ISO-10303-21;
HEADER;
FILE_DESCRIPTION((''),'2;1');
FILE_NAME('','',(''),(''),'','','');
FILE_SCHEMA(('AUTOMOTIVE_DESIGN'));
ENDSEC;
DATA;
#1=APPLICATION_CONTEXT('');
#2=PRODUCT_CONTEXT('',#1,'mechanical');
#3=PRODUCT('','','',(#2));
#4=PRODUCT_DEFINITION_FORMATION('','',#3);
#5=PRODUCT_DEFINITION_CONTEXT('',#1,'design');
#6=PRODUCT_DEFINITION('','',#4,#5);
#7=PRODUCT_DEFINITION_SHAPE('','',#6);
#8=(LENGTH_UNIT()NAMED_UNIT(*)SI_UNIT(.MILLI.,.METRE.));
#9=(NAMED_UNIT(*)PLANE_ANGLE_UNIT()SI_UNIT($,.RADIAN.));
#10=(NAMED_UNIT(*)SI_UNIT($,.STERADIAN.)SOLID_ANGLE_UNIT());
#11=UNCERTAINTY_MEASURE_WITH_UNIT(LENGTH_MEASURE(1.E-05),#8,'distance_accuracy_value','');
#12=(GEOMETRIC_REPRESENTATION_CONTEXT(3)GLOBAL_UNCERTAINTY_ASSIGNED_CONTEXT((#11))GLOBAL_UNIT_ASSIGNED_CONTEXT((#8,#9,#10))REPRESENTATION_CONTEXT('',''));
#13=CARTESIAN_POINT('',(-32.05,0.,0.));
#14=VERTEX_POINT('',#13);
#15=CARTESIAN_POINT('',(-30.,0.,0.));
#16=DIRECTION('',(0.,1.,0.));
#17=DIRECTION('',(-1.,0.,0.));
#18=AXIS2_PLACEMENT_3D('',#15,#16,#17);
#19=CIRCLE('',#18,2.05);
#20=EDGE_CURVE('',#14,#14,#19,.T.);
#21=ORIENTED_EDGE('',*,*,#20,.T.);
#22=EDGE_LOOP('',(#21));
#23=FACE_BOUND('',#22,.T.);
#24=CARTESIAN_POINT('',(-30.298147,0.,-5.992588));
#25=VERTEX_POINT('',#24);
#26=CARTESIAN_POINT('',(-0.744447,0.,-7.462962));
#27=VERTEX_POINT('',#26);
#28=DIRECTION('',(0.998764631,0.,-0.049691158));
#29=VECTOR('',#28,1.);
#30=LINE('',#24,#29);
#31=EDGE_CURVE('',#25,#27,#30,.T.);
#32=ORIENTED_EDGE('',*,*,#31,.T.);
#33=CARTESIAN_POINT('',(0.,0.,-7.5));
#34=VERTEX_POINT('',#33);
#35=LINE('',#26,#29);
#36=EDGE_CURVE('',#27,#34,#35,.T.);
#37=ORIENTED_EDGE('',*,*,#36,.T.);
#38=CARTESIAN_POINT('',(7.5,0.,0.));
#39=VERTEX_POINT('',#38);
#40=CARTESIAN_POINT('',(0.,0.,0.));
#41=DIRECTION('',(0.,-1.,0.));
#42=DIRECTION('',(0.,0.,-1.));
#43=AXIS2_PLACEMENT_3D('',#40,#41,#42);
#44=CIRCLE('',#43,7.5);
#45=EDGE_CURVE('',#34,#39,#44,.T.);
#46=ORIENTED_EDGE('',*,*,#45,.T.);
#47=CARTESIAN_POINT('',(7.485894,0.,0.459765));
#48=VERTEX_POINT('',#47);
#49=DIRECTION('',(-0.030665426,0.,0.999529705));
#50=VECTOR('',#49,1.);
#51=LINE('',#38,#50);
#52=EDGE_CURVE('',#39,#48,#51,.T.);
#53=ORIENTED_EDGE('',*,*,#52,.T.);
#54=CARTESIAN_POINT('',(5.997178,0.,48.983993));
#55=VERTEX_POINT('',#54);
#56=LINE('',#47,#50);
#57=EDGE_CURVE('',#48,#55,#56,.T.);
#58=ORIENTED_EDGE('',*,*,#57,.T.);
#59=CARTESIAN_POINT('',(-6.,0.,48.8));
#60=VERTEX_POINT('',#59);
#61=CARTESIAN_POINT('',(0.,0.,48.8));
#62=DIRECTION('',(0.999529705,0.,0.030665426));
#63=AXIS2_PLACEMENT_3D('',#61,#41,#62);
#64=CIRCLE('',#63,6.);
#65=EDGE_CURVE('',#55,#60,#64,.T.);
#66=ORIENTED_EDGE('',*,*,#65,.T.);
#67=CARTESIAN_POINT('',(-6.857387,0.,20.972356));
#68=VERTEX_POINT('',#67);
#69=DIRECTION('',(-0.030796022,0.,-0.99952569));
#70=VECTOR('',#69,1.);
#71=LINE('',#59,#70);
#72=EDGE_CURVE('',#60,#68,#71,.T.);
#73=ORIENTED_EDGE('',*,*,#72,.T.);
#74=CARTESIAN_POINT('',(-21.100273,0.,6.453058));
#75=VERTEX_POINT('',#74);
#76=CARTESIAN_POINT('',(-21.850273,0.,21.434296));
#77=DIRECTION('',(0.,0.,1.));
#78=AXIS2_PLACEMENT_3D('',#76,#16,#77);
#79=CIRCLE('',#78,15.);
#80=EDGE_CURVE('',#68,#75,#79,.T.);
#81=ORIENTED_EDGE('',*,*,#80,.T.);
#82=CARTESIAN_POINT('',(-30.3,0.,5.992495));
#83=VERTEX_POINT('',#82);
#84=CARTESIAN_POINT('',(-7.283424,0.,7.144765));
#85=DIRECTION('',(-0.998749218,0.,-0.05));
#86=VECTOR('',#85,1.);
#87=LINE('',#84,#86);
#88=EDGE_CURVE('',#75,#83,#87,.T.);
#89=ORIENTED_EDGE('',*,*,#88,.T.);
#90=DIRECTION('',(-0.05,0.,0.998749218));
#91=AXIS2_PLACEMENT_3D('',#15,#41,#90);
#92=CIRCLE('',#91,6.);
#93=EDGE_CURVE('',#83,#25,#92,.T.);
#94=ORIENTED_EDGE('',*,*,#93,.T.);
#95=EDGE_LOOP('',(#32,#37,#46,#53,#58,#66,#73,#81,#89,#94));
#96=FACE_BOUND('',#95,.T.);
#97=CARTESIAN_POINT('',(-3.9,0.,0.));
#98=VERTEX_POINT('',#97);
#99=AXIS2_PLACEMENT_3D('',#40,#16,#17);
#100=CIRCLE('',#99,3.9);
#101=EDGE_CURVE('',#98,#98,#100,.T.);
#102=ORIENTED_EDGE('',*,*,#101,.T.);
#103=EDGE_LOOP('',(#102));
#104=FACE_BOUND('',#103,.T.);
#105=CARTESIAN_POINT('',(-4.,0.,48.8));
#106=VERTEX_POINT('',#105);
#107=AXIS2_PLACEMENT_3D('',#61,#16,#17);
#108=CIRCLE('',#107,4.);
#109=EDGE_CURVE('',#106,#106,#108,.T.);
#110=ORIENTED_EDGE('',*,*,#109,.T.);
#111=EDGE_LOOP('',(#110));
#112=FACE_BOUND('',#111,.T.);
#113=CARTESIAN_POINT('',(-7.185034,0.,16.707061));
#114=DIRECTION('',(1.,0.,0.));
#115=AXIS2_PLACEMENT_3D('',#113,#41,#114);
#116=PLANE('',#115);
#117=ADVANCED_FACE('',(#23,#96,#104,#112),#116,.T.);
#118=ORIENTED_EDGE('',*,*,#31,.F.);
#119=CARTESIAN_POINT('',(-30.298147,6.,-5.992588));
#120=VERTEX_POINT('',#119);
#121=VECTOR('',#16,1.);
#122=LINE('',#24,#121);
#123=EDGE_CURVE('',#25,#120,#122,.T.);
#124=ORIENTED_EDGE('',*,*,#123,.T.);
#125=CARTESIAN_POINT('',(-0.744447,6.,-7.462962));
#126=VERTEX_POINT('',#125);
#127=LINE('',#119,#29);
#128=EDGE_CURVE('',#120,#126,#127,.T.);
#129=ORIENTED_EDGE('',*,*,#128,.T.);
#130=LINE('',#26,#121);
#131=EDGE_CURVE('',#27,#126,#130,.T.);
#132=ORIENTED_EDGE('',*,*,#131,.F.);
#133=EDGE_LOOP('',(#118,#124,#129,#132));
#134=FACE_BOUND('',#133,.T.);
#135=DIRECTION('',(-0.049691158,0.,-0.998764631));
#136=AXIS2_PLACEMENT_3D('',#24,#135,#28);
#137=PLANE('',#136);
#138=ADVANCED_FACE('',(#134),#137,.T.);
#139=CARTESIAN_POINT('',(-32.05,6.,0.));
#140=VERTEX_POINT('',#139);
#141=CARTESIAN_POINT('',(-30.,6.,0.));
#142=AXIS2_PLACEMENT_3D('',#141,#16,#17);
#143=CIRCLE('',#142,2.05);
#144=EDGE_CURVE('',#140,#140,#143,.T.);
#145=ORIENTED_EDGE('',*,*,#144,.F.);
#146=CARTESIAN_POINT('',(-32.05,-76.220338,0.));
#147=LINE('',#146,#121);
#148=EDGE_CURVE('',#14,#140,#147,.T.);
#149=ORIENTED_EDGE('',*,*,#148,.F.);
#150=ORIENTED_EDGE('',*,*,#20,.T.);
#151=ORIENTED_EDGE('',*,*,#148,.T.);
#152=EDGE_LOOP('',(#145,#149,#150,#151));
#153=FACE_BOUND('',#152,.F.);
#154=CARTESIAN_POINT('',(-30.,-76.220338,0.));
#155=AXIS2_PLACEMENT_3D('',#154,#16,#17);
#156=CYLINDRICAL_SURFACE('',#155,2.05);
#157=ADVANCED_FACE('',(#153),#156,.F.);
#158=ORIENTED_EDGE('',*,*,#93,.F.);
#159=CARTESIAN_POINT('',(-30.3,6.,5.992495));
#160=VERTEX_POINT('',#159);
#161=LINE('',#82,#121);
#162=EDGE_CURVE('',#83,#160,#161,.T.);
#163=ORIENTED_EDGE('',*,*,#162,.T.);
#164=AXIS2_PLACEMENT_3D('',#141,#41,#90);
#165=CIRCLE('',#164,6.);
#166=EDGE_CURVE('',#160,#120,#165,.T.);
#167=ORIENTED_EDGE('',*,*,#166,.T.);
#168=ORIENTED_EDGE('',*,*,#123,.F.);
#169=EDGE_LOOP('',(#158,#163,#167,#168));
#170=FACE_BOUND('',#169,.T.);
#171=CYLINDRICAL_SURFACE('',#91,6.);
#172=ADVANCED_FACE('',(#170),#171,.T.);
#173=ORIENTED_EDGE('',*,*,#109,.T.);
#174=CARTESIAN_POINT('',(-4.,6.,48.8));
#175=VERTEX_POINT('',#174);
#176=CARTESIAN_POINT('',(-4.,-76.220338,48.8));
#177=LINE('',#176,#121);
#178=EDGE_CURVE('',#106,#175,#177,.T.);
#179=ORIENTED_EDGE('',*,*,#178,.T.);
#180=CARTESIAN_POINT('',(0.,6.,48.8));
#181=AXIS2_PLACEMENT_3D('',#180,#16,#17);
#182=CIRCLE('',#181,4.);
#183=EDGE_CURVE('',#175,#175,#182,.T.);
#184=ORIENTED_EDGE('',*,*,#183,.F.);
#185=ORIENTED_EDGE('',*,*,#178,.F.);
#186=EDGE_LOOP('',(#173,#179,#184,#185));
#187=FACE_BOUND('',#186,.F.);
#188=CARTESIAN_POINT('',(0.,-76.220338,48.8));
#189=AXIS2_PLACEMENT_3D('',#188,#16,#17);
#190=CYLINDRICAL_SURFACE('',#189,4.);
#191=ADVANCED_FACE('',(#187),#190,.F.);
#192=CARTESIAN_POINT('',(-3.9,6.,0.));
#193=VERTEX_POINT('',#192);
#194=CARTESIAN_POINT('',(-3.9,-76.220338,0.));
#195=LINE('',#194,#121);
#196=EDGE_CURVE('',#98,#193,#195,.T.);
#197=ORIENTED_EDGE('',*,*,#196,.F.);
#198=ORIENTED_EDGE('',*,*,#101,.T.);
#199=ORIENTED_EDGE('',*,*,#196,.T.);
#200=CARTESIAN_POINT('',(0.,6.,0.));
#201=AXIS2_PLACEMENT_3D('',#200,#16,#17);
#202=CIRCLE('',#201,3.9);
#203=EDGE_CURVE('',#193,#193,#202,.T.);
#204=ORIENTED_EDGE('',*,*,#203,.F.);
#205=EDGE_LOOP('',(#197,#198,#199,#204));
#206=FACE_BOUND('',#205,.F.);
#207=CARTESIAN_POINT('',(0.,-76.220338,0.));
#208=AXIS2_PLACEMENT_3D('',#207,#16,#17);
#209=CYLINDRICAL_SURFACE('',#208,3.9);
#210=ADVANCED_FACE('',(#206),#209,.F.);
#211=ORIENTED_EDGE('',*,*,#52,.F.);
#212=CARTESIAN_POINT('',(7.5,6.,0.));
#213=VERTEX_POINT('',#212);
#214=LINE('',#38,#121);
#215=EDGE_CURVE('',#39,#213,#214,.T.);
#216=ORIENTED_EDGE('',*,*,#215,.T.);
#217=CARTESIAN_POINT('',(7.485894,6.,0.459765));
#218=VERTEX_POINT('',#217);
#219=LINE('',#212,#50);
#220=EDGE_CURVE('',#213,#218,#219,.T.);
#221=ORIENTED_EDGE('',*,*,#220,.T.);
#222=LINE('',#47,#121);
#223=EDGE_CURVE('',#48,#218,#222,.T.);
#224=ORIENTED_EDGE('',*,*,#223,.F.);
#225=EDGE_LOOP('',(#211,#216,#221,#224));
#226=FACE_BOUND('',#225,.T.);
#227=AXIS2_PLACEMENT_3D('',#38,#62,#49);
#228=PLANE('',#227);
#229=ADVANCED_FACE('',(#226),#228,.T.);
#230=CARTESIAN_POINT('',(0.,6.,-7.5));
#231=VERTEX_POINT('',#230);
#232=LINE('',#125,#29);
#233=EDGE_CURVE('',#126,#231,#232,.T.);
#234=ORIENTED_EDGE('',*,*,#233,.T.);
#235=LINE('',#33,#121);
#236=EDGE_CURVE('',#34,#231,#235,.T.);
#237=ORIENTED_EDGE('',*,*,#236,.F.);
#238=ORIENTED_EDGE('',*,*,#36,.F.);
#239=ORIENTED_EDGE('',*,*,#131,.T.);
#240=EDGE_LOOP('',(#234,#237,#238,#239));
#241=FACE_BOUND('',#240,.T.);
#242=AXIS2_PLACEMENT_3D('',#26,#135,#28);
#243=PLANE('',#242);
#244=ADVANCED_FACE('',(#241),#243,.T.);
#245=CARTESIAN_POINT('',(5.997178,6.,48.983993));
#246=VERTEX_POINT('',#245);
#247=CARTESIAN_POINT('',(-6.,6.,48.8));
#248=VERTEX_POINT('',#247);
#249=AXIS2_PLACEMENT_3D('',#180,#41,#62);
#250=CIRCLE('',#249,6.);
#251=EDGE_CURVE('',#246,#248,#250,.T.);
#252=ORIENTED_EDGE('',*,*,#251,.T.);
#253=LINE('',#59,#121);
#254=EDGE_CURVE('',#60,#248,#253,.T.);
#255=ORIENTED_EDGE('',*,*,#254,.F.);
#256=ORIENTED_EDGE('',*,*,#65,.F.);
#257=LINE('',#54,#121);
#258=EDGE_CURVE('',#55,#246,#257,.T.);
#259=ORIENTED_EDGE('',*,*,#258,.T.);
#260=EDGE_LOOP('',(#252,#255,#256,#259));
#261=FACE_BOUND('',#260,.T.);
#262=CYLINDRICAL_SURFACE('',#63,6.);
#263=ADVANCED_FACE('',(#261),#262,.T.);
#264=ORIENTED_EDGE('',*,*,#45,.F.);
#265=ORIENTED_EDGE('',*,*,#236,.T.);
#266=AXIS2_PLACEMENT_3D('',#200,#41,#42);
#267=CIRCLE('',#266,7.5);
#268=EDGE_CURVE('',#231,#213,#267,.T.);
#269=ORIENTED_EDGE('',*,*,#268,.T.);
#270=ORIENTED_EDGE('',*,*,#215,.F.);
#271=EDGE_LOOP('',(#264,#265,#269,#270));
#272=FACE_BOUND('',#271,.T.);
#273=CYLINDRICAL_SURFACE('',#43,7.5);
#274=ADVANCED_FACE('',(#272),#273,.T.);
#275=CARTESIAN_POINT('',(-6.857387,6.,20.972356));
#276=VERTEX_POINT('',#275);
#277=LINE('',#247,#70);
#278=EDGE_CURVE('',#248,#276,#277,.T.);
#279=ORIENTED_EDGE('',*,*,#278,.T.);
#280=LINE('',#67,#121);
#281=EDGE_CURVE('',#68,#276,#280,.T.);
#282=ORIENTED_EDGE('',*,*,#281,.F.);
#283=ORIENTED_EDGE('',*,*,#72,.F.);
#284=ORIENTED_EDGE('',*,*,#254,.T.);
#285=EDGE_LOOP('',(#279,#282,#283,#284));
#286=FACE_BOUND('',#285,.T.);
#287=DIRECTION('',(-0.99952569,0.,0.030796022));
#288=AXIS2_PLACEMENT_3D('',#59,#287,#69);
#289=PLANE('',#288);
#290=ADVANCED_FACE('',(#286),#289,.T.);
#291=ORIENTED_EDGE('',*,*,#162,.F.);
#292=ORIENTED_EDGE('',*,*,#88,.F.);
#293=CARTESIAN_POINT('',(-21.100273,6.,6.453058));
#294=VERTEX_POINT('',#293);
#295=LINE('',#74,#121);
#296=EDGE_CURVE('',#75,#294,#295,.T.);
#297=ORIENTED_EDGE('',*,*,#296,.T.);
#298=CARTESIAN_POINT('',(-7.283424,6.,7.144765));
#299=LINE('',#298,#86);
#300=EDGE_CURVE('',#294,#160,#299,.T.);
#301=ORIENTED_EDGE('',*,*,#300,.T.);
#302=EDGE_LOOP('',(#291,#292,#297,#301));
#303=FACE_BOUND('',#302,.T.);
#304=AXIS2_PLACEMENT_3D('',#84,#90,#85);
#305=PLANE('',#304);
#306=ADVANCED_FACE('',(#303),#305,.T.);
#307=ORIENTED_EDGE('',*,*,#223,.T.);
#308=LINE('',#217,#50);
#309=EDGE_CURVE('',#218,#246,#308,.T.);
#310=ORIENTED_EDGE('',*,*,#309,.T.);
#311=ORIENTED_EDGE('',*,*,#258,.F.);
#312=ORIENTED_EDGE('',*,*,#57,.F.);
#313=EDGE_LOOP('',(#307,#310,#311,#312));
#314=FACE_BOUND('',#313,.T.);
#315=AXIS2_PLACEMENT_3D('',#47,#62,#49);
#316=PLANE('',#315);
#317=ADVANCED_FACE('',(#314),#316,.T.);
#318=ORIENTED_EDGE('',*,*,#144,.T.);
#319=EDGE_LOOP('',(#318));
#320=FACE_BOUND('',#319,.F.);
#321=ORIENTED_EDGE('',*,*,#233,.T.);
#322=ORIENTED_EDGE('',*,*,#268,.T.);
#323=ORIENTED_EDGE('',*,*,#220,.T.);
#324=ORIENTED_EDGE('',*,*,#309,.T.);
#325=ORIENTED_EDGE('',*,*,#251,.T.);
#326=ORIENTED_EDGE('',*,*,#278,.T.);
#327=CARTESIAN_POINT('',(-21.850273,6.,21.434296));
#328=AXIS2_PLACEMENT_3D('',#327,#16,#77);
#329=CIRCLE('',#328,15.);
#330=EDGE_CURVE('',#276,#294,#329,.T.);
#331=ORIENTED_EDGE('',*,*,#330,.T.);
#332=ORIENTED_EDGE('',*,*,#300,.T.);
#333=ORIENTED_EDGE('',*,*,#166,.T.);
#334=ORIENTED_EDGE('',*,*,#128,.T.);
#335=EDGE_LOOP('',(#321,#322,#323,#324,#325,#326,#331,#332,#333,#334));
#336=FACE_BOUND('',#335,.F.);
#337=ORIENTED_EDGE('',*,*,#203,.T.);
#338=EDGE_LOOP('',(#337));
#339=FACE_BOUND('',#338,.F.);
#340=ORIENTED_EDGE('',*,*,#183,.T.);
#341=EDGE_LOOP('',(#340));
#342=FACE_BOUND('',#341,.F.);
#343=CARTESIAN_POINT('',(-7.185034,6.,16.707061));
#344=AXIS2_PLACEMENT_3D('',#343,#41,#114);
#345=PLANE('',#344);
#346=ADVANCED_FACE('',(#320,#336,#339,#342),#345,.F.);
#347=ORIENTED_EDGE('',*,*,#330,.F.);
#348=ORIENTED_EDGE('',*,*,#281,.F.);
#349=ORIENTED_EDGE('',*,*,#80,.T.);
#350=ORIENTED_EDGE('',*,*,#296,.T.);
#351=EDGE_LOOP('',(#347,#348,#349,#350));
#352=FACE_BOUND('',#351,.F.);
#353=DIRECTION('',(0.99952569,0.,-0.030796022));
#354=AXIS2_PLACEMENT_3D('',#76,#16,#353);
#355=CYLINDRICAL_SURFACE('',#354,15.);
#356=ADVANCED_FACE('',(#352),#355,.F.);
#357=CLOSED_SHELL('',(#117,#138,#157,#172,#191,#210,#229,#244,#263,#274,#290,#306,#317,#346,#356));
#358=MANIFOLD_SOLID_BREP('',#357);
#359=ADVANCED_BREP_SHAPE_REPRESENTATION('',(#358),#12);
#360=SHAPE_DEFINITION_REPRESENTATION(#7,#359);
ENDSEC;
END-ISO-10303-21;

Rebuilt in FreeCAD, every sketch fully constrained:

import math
import FreeCAD as App
import Part
import Sketcher
Q = App.Units.Quantity


def edges_at(feature, points):
    """Names of the edges that pass closest to the given points."""
    edges = feature.Shape.Edges
    near = lambda p: min(range(len(edges)), key=lambda i: edges[i].distToShape(Part.Vertex(*p))[0])
    return sorted({f"Edge{near(p) + 1}" for p in points})

doc = App.newDocument("Part")
body = doc.addObject("PartDesign::Body", "Body")

sketch1 = body.newObject("Sketcher::SketchObject", "Sketch")
sketch1.AttachmentSupport = (doc.getObject("XZ_Plane"), [""])
sketch1.MapMode = "FlatFace"
sketch1.addGeometry([
    Part.LineSegment(App.Vector(7.49, 0.46, 0), App.Vector(6, 48.98, 0)),
    Part.ArcOfCircle(Part.Circle(App.Vector(0, 48.8, 0), App.Vector(0, 0, 1), 6), math.radians(2), math.radians(180)),
    Part.LineSegment(App.Vector(-6, 48.8, 0), App.Vector(-7.28, 7.14, 0)),
    Part.LineSegment(App.Vector(-7.28, 7.14, 0), App.Vector(-30.3, 5.99, 0)),
    Part.ArcOfCircle(Part.Circle(App.Vector(-30, 0, 0), App.Vector(0, 0, 1), 6), math.radians(93), math.radians(267)),
    Part.LineSegment(App.Vector(-30.3, -5.99, 0), App.Vector(-0.74, -7.46, 0)),
    Part.LineSegment(App.Vector(-0.74, -7.46, 0), App.Vector(0, -7.5, 0)),
    Part.ArcOfCircle(Part.Circle(App.Vector(0, 0, 0), App.Vector(0, 0, 1), 7.5), math.radians(-90), math.radians(0)),
    Part.LineSegment(App.Vector(7.5, 0, 0), App.Vector(7.49, 0.46, 0)),
], False)
sketch1.addConstraint([
    Sketcher.Constraint("Tangent", 0, 2, 1, 1),
    Sketcher.Constraint("Coincident", 1, 2, 2, 1),
    Sketcher.Constraint("Coincident", 2, 2, 3, 1),
    Sketcher.Constraint("Tangent", 3, 2, 4, 1),
    Sketcher.Constraint("Tangent", 4, 2, 5, 1),
    Sketcher.Constraint("Coincident", 5, 2, 6, 1),
    Sketcher.Constraint("Coincident", 6, 2, 7, 1),
    Sketcher.Constraint("Coincident", 7, 2, 8, 1),
    Sketcher.Constraint("Coincident", 8, 2, 0, 1),
    Sketcher.Constraint("Coincident", 7, 3, -1, 1),
    Sketcher.Constraint("Equal", 1, 4),
    Sketcher.Constraint("PointOnObject", 1, 3, -2),
    Sketcher.Constraint("PointOnObject", 4, 3, -1),
    Sketcher.Constraint("PointOnObject", 6, 2, -2),
    Sketcher.Constraint("PointOnObject", 7, 2, -1),
    Sketcher.Constraint("Parallel", 5, 6),
    Sketcher.Constraint("Parallel", 0, 8),
    Sketcher.Constraint("Radius", 1, Q("6 mm")),
    Sketcher.Constraint("Radius", 7, Q("7.5 mm")),
    Sketcher.Constraint("DistanceX", 4, 3, -1, 1, Q("30 mm")),
    Sketcher.Constraint("DistanceY", -1, 1, 1, 3, Q("48.8 mm")),
    Sketcher.Constraint("DistanceY", -1, 1, 1, 2, Q("48.8 mm")),
    Sketcher.Constraint("DistanceX", 3, 2, -1, 1, Q("30.3 mm")),
    Sketcher.Constraint("Distance", 2, Q("41.675002 mm")),
    Sketcher.Constraint("DistanceY", 8, 2, 2, 2, Q("6.685 mm")),
    Sketcher.Constraint("DistanceX", 4, 2, 5, 2, Q("29.5537 mm")),
])
pad1 = body.newObject("PartDesign::Pad", "Pad")
pad1.Profile = sketch1
pad1.Length = 6
pad1.Reversed = True

sketch2 = body.newObject("Sketcher::SketchObject", "Sketch001")
sketch2.AttachmentSupport = (doc.getObject("XZ_Plane"), [""])
sketch2.MapMode = "FlatFace"
sketch2.addGeometry(Part.Circle(App.Vector(-30, 0, 0), App.Vector(0, 0, 1), 2), False)
sketch2.addConstraint([
    Sketcher.Constraint("PointOnObject", 0, 3, -1),
    Sketcher.Constraint("Diameter", 0, Q("4.1 mm")),
    Sketcher.Constraint("DistanceX", 0, 3, -1, 1, Q("30 mm")),
])
doc.recompute()
hole = body.newObject("PartDesign::Hole", "Hole")
hole.Profile = sketch2
hole.ThreadType = "None"
hole.Diameter = 4.1
hole.DepthType = "ThroughAll"

sketch3 = body.newObject("Sketcher::SketchObject", "Sketch002")
sketch3.AttachmentSupport = (doc.getObject("XZ_Plane"), [""])
sketch3.MapMode = "FlatFace"
sketch3.addGeometry(Part.Circle(App.Vector(0, 48.8, 0), App.Vector(0, 0, 1), 4), False)
sketch3.addConstraint([
    Sketcher.Constraint("PointOnObject", 0, 3, -2),
    Sketcher.Constraint("Diameter", 0, Q("8 mm")),
    Sketcher.Constraint("DistanceY", -1, 1, 0, 3, Q("48.8 mm")),
])
doc.recompute()
hole2 = body.newObject("PartDesign::Hole", "Hole001")
hole2.Profile = sketch3
hole2.ThreadType = "None"
hole2.Diameter = 8
hole2.DepthType = "ThroughAll"

sketch4 = body.newObject("Sketcher::SketchObject", "Sketch003")
sketch4.AttachmentSupport = (doc.getObject("XZ_Plane"), [""])
sketch4.MapMode = "FlatFace"
sketch4.addGeometry(Part.Circle(App.Vector(0, 0, 0), App.Vector(0, 0, 1), 3.9), False)
sketch4.addConstraint([
    Sketcher.Constraint("Coincident", 0, 3, -1, 1),
    Sketcher.Constraint("Diameter", 0, Q("7.8 mm")),
])
doc.recompute()
hole3 = body.newObject("PartDesign::Hole", "Hole002")
hole3.Profile = sketch4
hole3.ThreadType = "None"
hole3.Diameter = 7.8
hole3.DepthType = "ThroughAll"
doc.recompute()

fillet = body.newObject("PartDesign::Fillet", "Fillet")
fillet.Base = (hole3, edges_at(hole3, [(-7.283, 3, 7.145)]))
fillet.Radius = 15

doc.recompute()
